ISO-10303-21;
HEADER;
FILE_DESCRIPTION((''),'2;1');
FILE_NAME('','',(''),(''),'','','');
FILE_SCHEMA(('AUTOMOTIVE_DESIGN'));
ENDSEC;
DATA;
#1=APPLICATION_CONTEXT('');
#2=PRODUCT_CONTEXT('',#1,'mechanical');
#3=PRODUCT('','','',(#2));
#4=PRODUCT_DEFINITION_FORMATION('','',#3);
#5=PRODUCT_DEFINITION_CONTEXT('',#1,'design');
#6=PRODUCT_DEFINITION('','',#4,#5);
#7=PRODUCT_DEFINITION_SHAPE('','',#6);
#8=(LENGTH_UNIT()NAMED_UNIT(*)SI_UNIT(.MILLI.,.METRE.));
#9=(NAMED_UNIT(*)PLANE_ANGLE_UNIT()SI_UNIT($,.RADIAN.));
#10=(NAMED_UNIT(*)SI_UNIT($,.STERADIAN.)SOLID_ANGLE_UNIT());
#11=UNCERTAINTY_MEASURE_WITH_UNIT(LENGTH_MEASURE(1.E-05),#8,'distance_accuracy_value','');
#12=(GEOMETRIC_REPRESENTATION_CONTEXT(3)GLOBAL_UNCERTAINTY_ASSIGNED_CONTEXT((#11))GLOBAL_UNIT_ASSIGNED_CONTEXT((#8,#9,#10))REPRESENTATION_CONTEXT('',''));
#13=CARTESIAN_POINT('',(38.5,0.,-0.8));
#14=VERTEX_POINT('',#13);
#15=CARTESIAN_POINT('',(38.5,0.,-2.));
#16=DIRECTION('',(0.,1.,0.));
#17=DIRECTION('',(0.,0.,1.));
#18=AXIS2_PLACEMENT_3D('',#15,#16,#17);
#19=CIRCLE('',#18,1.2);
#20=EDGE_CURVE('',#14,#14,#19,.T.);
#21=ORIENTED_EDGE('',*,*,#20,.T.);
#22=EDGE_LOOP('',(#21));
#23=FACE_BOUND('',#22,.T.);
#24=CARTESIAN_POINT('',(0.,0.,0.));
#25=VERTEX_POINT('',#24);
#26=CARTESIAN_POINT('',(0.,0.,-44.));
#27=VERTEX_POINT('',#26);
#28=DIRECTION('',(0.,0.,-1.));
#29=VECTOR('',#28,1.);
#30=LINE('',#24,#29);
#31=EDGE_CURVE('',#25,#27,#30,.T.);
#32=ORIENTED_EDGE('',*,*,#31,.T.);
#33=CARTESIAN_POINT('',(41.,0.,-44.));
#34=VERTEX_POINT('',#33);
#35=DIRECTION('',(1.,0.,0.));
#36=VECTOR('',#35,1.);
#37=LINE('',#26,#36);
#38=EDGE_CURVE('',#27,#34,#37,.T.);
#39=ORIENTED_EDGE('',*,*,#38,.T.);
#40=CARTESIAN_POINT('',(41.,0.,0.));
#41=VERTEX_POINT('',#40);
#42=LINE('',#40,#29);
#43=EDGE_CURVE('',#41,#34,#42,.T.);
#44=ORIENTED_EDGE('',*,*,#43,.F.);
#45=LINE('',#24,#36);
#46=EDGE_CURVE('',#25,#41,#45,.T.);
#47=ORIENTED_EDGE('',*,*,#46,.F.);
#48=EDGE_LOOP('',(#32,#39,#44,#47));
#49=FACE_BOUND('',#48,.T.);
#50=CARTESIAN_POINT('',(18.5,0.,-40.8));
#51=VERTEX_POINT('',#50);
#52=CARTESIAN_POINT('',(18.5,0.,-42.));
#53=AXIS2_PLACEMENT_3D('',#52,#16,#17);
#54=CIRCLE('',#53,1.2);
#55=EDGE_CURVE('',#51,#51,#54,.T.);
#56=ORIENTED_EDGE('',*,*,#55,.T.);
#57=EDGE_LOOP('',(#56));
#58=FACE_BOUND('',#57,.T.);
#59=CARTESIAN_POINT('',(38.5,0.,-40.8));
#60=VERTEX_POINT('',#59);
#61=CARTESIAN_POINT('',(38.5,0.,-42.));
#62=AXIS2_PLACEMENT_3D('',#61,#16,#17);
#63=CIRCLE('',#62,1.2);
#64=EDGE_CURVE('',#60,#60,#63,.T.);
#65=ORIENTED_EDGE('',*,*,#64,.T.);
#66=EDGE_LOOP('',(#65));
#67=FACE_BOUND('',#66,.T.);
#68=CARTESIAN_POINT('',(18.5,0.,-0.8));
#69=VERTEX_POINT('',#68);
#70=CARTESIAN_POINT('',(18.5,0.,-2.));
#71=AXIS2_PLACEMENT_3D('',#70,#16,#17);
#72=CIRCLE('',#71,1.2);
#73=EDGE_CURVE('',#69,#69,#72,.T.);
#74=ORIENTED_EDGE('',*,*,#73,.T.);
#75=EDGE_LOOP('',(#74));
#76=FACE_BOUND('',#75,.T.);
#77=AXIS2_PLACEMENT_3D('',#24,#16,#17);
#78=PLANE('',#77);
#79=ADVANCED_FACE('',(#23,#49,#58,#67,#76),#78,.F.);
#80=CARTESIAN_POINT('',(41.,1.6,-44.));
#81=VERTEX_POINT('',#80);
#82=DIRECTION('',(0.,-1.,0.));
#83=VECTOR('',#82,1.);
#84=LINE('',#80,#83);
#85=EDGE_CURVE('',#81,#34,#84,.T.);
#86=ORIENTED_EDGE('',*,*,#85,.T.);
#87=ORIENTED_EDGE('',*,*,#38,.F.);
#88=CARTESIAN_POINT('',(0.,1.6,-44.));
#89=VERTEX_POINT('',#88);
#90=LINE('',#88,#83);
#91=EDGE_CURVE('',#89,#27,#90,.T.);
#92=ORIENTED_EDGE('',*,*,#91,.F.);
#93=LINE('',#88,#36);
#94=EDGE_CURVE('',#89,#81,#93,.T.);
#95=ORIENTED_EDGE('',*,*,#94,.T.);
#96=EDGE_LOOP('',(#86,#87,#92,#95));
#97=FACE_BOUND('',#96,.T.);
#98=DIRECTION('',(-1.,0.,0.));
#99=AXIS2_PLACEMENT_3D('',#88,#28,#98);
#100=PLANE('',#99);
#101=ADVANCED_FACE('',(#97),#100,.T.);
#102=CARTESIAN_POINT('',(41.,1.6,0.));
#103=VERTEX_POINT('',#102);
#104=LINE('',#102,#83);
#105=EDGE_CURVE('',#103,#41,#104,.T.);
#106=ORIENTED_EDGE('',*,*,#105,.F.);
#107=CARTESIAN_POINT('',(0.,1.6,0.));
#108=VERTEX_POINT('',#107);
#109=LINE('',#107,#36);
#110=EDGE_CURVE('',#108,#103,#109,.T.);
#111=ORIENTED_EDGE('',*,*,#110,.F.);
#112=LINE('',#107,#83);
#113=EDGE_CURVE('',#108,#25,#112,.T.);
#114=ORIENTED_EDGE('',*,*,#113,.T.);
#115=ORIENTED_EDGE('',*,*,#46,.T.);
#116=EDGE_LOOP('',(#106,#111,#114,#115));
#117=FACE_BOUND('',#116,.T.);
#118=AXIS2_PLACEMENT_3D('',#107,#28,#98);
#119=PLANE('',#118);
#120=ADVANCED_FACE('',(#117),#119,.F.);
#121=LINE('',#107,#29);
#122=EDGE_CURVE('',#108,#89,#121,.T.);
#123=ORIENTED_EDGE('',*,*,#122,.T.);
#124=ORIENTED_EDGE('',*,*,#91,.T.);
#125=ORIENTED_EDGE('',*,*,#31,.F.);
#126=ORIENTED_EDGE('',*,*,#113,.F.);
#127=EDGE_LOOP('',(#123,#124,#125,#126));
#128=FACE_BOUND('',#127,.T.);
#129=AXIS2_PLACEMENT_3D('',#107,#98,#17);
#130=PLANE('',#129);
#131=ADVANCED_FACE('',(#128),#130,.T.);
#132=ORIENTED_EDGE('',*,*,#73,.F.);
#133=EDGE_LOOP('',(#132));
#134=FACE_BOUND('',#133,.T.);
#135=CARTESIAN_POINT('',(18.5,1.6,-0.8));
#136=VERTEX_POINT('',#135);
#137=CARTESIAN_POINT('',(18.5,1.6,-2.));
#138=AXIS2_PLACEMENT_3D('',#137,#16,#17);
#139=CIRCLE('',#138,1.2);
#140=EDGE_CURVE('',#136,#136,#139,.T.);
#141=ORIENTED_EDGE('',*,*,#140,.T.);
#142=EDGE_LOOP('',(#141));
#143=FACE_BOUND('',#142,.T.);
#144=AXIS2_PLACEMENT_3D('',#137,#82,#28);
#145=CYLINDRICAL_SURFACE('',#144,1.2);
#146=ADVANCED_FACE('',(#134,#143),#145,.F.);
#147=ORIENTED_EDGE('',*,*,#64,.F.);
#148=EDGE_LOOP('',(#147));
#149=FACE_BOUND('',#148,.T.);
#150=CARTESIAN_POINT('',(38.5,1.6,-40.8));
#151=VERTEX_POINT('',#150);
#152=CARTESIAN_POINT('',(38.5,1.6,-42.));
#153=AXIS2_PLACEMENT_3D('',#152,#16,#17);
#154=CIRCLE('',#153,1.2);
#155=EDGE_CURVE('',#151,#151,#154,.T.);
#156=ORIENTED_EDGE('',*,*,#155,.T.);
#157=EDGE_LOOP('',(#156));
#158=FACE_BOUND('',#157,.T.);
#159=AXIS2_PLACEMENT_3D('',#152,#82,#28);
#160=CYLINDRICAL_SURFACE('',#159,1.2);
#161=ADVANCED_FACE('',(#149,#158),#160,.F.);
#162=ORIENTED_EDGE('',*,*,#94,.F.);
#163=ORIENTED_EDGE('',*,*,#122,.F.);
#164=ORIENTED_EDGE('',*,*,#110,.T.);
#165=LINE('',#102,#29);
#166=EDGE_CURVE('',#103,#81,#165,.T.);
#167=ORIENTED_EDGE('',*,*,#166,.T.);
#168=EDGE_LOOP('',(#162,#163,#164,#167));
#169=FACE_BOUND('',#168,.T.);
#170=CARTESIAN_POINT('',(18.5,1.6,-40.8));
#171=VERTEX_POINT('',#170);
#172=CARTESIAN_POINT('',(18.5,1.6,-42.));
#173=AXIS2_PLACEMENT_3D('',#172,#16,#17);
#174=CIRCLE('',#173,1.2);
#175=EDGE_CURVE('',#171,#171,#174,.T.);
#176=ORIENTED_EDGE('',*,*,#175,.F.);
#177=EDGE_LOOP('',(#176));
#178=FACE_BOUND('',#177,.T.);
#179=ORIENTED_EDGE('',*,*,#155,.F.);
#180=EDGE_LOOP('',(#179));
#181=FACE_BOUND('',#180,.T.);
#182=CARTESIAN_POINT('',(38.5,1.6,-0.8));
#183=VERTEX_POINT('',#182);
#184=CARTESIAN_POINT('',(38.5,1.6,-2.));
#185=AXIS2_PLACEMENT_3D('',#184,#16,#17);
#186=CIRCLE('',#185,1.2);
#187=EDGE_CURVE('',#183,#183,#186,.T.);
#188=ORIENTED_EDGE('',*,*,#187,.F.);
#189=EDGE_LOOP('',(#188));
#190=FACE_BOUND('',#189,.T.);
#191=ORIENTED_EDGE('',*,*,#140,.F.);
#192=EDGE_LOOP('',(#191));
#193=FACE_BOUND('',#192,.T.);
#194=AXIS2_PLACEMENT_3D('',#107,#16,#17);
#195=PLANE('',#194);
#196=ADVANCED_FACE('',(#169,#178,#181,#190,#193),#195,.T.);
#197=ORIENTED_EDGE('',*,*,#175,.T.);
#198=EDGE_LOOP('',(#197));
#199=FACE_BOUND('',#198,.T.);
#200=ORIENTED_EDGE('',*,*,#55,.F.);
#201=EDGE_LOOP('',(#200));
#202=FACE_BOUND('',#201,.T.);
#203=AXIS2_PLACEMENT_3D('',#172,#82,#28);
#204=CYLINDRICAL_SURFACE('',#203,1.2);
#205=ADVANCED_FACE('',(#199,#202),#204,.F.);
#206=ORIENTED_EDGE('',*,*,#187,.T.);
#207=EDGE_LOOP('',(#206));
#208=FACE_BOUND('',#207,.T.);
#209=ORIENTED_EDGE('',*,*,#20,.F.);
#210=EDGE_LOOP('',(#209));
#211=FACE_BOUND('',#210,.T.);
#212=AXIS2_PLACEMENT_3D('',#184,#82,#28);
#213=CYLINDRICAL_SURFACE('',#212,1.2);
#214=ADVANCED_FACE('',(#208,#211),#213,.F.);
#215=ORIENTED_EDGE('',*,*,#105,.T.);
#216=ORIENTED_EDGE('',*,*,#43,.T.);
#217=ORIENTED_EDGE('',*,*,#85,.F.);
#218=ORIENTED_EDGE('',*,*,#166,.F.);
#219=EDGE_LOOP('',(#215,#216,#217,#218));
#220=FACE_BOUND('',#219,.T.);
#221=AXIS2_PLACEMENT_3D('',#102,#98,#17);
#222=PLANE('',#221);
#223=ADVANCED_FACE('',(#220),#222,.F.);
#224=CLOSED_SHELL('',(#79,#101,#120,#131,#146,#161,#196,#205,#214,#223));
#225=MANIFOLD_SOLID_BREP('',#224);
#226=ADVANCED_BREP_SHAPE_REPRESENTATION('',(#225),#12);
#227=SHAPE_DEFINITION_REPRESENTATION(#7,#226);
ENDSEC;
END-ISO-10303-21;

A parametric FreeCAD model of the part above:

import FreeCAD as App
import Part
import Sketcher


def add_polygon(sketch, points):
    """Adds a closed chain of lines whose ends are joined by coincident constraints."""
    first, n = sketch.GeometryCount, len(points)
    for a, b in zip(points, points[1:] + points[:1]):
        sketch.addGeometry(Part.LineSegment(App.Vector(*a, 0), App.Vector(*b, 0)), False)
    for i in range(n):
        sketch.addConstraint(Sketcher.Constraint("Coincident", first + i, 2, first + (i + 1) % n, 1))

doc = App.newDocument("Part")
params = doc.addObject("Spreadsheet::Sheet", "Params")
for row, (alias, value) in enumerate([
    ("sketch1_diameter", "2.4 mm"),
    ("sketch1_width", "41 mm"),
    ("sketch1_height", "44 mm"),
    ("pad1_length", "1.6 mm"),
], start=1):
    params.set(f"A{row}", alias)
    params.set(f"B{row}", "=" + value)
    params.setAlias(f"B{row}", alias)

body = doc.addObject("PartDesign::Body", "Body")

# Sketch on XZ plane
sketch1 = body.newObject("Sketcher::SketchObject", "Sketch")
sketch1.AttachmentSupport = (doc.getObject("XZ_Plane"), [""])
sketch1.MapMode = "FlatFace"
add_polygon(sketch1, [(0, -44), (0, 0), (41, 0), (41, -44)])  # lines 0-3
sketch1.addGeometry(Part.Circle(App.Vector(18.5, -2, 0), App.Vector(0, 0, 1), 1.2), False)  # 4
sketch1.addGeometry(Part.Circle(App.Vector(38.5, -2, 0), App.Vector(0, 0, 1), 1.2), False)  # 5
sketch1.addGeometry(Part.Circle(App.Vector(18.5, -42, 0), App.Vector(0, 0, 1), 1.2), False)  # 6
sketch1.addGeometry(Part.Circle(App.Vector(38.5, -42, 0), App.Vector(0, 0, 1), 1.2), False)  # 7
sketch1.addConstraint(Sketcher.Constraint("Vertical", 0))
sketch1.addConstraint(Sketcher.Constraint("Horizontal", 1))
sketch1.addConstraint(Sketcher.Constraint("Vertical", 2))
sketch1.addConstraint(Sketcher.Constraint("Horizontal", 3))
sketch1.addConstraint(Sketcher.Constraint("Coincident", 0, 2, -1, 1))
sketch1.addConstraint(Sketcher.Constraint("Equal", 4, 5))
sketch1.addConstraint(Sketcher.Constraint("Equal", 5, 6))
sketch1.addConstraint(Sketcher.Constraint("Equal", 6, 7))
sketch1.addConstraint(Sketcher.Constraint("Horizontal", 4, 3, 5, 3))
sketch1.addConstraint(Sketcher.Constraint("Horizontal", 6, 3, 7, 3))
sketch1.addConstraint(Sketcher.Constraint("Vertical", 4, 3, 6, 3))
sketch1.addConstraint(Sketcher.Constraint("Vertical", 5, 3, 7, 3))
sketch1.addConstraint(Sketcher.Constraint("Diameter", 4, 2.4))
sketch1.addConstraint(Sketcher.Constraint("DistanceX", 1, 1, 1, 2, 41.0))
sketch1.addConstraint(Sketcher.Constraint("DistanceY", 0, 1, 0, 2, 44.0))
sketch1.addConstraint(Sketcher.Constraint("DistanceY", 4, 3, -1, 1, 2.0))
sketch1.addConstraint(Sketcher.Constraint("DistanceY", 6, 3, -1, 1, 42.0))
sketch1.addConstraint(Sketcher.Constraint("DistanceX", 4, 3, 5, 3, 20.0))
sketch1.addConstraint(Sketcher.Constraint("DistanceX", -1, 1, 4, 3, 18.5))
sketch1.setExpression("Constraints[16]", "Params.sketch1_diameter")
sketch1.setExpression("Constraints[17]", "Params.sketch1_width")
sketch1.setExpression("Constraints[18]", "Params.sketch1_height")
pad1 = body.newObject("PartDesign::Pad", "Pad")
pad1.Profile = sketch1
pad1.setExpression("Length", "Params.pad1_length")
pad1.Reversed = True

doc.recompute()
